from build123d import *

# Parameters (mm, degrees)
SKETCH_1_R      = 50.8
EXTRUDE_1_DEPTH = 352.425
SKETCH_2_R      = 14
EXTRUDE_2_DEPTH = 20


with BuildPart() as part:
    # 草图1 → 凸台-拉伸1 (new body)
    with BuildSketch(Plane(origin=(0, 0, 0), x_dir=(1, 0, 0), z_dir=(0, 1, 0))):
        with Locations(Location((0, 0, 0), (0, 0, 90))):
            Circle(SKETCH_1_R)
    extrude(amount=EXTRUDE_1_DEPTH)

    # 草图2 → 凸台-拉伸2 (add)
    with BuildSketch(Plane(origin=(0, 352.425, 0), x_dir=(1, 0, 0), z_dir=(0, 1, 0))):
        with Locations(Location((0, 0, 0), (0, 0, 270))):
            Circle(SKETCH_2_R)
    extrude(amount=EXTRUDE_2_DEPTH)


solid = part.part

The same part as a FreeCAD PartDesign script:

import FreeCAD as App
import Part
import Sketcher
from FreeCAD import Vector

doc = App.newDocument("Part")
body = doc.addObject("PartDesign::Body", "Body")

sketch1 = doc.addObject("Sketcher::SketchObject", "Sketch")
body.addObject(sketch1)
sketch1.AttachmentSupport = (doc.XZ_Plane, [""])
sketch1.MapMode = "FlatFace"
sketch1.addGeometry(Part.Circle(Vector(0, 0, 0), Vector(0, 0, 1), 51), False)
sketch1.addConstraint(Sketcher.Constraint("Coincident", 0, 3, -1, 1))
sketch1.addConstraint(Sketcher.Constraint("Diameter", 0, 101.6))
pad1 = doc.addObject("PartDesign::Pad", "Pad")
body.addObject(pad1)
pad1.Profile = sketch1
pad1.Length = 352.425
pad1.Reversed = True

sketch2 = doc.addObject("Sketcher::SketchObject", "Sketch001")
body.addObject(sketch2)
sketch2.AttachmentSupport = (doc.XZ_Plane, [""])
sketch2.MapMode = "FlatFace"
sketch2.AttachmentOffset = App.Placement(Vector(0, 0, -352.425), App.Rotation())
sketch2.addGeometry(Part.Circle(Vector(0, 0, 0), Vector(0, 0, 1), 14), False)
sketch2.addConstraint(Sketcher.Constraint("Coincident", 0, 3, -1, 1))
sketch2.addConstraint(Sketcher.Constraint("Diameter", 0, 28.0))
pad2 = doc.addObject("PartDesign::Pad", "Pad001")
body.addObject(pad2)
pad2.Profile = sketch2
pad2.Length = 20
pad2.Reversed = True

doc.recompute()
